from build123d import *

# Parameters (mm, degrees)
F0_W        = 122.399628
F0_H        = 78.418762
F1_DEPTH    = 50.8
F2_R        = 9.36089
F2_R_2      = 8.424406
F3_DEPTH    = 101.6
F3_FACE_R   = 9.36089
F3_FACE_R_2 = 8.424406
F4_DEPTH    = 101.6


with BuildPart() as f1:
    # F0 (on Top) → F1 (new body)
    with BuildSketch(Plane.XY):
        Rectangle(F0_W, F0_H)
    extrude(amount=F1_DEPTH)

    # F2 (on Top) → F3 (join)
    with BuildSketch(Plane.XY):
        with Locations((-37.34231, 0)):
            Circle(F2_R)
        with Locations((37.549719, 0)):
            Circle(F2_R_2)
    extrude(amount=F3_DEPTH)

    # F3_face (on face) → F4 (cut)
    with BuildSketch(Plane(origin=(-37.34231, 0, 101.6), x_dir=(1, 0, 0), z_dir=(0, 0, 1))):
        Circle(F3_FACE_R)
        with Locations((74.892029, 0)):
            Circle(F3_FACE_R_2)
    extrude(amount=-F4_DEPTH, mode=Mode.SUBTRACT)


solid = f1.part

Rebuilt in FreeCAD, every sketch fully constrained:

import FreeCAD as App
import Part
import Sketcher
from FreeCAD import Vector
Q = App.Units.Quantity

doc = App.newDocument("Part")
body = doc.addObject("PartDesign::Body", "Body")

# Sketch on XY plane
sketch1 = doc.addObject("Sketcher::SketchObject", "Sketch")
body.addObject(sketch1)
sketch1.AttachmentSupport = (doc.XY_Plane, [""])
sketch1.MapMode = "FlatFace"
sketch1.addGeometry([
    Part.LineSegment(Vector(-61, 39, 0), Vector(-61, -39, 0)),
    Part.LineSegment(Vector(-61, -39, 0), Vector(61, -39, 0)),
    Part.LineSegment(Vector(61, -39, 0), Vector(61, 39, 0)),
    Part.LineSegment(Vector(61, 39, 0), Vector(-61, 39, 0)),
], False)
sketch1.addConstraint([
    Sketcher.Constraint("Coincident", 0, 2, 1, 1),
    Sketcher.Constraint("Coincident", 1, 2, 2, 1),
    Sketcher.Constraint("Coincident", 2, 2, 3, 1),
    Sketcher.Constraint("Coincident", 3, 2, 0, 1),
    Sketcher.Constraint("Vertical", 0),
    Sketcher.Constraint("Horizontal", 1),
    Sketcher.Constraint("Vertical", 2),
    Sketcher.Constraint("Horizontal", 3),
    Sketcher.Constraint("Symmetric", 0, 2, 2, 2, -1, 1),
    Sketcher.Constraint("DistanceX", 1, 1, 1, 2, 122.399628),
    Sketcher.Constraint("DistanceY", 0, 2, 0, 1, 78.418762),
])
pad1 = doc.addObject("PartDesign::Pad", "Pad")
body.addObject(pad1)
pad1.Profile = sketch1
pad1.Length = Q("2 in")

# Sketch on XY plane
sketch2 = doc.addObject("Sketcher::SketchObject", "Sketch001")
body.addObject(sketch2)
sketch2.AttachmentSupport = (doc.XY_Plane, [""])
sketch2.MapMode = "FlatFace"
sketch2.addGeometry([
    Part.Circle(Vector(-37, 0, 0), Vector(0, 0, 1), 9),
    Part.Circle(Vector(38, 0, 0), Vector(0, 0, 1), 8),
], False)
sketch2.addConstraint([
    Sketcher.Constraint("PointOnObject", 0, 3, -1),
    Sketcher.Constraint("PointOnObject", 1, 3, -1),
    Sketcher.Constraint("Diameter", 0, 18.72178),
    Sketcher.Constraint("Diameter", 1, 16.848812),
    Sketcher.Constraint("DistanceX", 0, 3, -1, 1, 37.34231),
    Sketcher.Constraint("DistanceX", -1, 1, 1, 3, 37.549719),
])
pad2 = doc.addObject("PartDesign::Pad", "Pad001")
body.addObject(pad2)
pad2.Profile = sketch2
pad2.Length = Q("4 in")

# Sketch on XY plane
sketch3 = doc.addObject("Sketcher::SketchObject", "Sketch002")
body.addObject(sketch3)
sketch3.AttachmentSupport = (doc.XY_Plane, [""])
sketch3.MapMode = "FlatFace"
sketch3.AttachmentOffset = App.Placement(Vector(0, 0, 4 * 25.4), App.Rotation())
sketch3.addGeometry([
    Part.Circle(Vector(-37, 0, 0), Vector(0, 0, 1), 9),
    Part.Circle(Vector(38, 0, 0), Vector(0, 0, 1), 8),
], False)
sketch3.addConstraint([
    Sketcher.Constraint("PointOnObject", 0, 3, -1),
    Sketcher.Constraint("PointOnObject", 1, 3, -1),
    Sketcher.Constraint("Diameter", 0, 18.72178),
    Sketcher.Constraint("Diameter", 1, 16.848812),
    Sketcher.Constraint("DistanceX", 0, 3, -1, 1, 37.34231),
    Sketcher.Constraint("DistanceX", -1, 1, 1, 3, 37.549719),
])
pocket1 = doc.addObject("PartDesign::Pocket", "Pocket")
body.addObject(pocket1)
pocket1.Profile = sketch3
pocket1.Length = Q("4 in")

doc.recompute()
